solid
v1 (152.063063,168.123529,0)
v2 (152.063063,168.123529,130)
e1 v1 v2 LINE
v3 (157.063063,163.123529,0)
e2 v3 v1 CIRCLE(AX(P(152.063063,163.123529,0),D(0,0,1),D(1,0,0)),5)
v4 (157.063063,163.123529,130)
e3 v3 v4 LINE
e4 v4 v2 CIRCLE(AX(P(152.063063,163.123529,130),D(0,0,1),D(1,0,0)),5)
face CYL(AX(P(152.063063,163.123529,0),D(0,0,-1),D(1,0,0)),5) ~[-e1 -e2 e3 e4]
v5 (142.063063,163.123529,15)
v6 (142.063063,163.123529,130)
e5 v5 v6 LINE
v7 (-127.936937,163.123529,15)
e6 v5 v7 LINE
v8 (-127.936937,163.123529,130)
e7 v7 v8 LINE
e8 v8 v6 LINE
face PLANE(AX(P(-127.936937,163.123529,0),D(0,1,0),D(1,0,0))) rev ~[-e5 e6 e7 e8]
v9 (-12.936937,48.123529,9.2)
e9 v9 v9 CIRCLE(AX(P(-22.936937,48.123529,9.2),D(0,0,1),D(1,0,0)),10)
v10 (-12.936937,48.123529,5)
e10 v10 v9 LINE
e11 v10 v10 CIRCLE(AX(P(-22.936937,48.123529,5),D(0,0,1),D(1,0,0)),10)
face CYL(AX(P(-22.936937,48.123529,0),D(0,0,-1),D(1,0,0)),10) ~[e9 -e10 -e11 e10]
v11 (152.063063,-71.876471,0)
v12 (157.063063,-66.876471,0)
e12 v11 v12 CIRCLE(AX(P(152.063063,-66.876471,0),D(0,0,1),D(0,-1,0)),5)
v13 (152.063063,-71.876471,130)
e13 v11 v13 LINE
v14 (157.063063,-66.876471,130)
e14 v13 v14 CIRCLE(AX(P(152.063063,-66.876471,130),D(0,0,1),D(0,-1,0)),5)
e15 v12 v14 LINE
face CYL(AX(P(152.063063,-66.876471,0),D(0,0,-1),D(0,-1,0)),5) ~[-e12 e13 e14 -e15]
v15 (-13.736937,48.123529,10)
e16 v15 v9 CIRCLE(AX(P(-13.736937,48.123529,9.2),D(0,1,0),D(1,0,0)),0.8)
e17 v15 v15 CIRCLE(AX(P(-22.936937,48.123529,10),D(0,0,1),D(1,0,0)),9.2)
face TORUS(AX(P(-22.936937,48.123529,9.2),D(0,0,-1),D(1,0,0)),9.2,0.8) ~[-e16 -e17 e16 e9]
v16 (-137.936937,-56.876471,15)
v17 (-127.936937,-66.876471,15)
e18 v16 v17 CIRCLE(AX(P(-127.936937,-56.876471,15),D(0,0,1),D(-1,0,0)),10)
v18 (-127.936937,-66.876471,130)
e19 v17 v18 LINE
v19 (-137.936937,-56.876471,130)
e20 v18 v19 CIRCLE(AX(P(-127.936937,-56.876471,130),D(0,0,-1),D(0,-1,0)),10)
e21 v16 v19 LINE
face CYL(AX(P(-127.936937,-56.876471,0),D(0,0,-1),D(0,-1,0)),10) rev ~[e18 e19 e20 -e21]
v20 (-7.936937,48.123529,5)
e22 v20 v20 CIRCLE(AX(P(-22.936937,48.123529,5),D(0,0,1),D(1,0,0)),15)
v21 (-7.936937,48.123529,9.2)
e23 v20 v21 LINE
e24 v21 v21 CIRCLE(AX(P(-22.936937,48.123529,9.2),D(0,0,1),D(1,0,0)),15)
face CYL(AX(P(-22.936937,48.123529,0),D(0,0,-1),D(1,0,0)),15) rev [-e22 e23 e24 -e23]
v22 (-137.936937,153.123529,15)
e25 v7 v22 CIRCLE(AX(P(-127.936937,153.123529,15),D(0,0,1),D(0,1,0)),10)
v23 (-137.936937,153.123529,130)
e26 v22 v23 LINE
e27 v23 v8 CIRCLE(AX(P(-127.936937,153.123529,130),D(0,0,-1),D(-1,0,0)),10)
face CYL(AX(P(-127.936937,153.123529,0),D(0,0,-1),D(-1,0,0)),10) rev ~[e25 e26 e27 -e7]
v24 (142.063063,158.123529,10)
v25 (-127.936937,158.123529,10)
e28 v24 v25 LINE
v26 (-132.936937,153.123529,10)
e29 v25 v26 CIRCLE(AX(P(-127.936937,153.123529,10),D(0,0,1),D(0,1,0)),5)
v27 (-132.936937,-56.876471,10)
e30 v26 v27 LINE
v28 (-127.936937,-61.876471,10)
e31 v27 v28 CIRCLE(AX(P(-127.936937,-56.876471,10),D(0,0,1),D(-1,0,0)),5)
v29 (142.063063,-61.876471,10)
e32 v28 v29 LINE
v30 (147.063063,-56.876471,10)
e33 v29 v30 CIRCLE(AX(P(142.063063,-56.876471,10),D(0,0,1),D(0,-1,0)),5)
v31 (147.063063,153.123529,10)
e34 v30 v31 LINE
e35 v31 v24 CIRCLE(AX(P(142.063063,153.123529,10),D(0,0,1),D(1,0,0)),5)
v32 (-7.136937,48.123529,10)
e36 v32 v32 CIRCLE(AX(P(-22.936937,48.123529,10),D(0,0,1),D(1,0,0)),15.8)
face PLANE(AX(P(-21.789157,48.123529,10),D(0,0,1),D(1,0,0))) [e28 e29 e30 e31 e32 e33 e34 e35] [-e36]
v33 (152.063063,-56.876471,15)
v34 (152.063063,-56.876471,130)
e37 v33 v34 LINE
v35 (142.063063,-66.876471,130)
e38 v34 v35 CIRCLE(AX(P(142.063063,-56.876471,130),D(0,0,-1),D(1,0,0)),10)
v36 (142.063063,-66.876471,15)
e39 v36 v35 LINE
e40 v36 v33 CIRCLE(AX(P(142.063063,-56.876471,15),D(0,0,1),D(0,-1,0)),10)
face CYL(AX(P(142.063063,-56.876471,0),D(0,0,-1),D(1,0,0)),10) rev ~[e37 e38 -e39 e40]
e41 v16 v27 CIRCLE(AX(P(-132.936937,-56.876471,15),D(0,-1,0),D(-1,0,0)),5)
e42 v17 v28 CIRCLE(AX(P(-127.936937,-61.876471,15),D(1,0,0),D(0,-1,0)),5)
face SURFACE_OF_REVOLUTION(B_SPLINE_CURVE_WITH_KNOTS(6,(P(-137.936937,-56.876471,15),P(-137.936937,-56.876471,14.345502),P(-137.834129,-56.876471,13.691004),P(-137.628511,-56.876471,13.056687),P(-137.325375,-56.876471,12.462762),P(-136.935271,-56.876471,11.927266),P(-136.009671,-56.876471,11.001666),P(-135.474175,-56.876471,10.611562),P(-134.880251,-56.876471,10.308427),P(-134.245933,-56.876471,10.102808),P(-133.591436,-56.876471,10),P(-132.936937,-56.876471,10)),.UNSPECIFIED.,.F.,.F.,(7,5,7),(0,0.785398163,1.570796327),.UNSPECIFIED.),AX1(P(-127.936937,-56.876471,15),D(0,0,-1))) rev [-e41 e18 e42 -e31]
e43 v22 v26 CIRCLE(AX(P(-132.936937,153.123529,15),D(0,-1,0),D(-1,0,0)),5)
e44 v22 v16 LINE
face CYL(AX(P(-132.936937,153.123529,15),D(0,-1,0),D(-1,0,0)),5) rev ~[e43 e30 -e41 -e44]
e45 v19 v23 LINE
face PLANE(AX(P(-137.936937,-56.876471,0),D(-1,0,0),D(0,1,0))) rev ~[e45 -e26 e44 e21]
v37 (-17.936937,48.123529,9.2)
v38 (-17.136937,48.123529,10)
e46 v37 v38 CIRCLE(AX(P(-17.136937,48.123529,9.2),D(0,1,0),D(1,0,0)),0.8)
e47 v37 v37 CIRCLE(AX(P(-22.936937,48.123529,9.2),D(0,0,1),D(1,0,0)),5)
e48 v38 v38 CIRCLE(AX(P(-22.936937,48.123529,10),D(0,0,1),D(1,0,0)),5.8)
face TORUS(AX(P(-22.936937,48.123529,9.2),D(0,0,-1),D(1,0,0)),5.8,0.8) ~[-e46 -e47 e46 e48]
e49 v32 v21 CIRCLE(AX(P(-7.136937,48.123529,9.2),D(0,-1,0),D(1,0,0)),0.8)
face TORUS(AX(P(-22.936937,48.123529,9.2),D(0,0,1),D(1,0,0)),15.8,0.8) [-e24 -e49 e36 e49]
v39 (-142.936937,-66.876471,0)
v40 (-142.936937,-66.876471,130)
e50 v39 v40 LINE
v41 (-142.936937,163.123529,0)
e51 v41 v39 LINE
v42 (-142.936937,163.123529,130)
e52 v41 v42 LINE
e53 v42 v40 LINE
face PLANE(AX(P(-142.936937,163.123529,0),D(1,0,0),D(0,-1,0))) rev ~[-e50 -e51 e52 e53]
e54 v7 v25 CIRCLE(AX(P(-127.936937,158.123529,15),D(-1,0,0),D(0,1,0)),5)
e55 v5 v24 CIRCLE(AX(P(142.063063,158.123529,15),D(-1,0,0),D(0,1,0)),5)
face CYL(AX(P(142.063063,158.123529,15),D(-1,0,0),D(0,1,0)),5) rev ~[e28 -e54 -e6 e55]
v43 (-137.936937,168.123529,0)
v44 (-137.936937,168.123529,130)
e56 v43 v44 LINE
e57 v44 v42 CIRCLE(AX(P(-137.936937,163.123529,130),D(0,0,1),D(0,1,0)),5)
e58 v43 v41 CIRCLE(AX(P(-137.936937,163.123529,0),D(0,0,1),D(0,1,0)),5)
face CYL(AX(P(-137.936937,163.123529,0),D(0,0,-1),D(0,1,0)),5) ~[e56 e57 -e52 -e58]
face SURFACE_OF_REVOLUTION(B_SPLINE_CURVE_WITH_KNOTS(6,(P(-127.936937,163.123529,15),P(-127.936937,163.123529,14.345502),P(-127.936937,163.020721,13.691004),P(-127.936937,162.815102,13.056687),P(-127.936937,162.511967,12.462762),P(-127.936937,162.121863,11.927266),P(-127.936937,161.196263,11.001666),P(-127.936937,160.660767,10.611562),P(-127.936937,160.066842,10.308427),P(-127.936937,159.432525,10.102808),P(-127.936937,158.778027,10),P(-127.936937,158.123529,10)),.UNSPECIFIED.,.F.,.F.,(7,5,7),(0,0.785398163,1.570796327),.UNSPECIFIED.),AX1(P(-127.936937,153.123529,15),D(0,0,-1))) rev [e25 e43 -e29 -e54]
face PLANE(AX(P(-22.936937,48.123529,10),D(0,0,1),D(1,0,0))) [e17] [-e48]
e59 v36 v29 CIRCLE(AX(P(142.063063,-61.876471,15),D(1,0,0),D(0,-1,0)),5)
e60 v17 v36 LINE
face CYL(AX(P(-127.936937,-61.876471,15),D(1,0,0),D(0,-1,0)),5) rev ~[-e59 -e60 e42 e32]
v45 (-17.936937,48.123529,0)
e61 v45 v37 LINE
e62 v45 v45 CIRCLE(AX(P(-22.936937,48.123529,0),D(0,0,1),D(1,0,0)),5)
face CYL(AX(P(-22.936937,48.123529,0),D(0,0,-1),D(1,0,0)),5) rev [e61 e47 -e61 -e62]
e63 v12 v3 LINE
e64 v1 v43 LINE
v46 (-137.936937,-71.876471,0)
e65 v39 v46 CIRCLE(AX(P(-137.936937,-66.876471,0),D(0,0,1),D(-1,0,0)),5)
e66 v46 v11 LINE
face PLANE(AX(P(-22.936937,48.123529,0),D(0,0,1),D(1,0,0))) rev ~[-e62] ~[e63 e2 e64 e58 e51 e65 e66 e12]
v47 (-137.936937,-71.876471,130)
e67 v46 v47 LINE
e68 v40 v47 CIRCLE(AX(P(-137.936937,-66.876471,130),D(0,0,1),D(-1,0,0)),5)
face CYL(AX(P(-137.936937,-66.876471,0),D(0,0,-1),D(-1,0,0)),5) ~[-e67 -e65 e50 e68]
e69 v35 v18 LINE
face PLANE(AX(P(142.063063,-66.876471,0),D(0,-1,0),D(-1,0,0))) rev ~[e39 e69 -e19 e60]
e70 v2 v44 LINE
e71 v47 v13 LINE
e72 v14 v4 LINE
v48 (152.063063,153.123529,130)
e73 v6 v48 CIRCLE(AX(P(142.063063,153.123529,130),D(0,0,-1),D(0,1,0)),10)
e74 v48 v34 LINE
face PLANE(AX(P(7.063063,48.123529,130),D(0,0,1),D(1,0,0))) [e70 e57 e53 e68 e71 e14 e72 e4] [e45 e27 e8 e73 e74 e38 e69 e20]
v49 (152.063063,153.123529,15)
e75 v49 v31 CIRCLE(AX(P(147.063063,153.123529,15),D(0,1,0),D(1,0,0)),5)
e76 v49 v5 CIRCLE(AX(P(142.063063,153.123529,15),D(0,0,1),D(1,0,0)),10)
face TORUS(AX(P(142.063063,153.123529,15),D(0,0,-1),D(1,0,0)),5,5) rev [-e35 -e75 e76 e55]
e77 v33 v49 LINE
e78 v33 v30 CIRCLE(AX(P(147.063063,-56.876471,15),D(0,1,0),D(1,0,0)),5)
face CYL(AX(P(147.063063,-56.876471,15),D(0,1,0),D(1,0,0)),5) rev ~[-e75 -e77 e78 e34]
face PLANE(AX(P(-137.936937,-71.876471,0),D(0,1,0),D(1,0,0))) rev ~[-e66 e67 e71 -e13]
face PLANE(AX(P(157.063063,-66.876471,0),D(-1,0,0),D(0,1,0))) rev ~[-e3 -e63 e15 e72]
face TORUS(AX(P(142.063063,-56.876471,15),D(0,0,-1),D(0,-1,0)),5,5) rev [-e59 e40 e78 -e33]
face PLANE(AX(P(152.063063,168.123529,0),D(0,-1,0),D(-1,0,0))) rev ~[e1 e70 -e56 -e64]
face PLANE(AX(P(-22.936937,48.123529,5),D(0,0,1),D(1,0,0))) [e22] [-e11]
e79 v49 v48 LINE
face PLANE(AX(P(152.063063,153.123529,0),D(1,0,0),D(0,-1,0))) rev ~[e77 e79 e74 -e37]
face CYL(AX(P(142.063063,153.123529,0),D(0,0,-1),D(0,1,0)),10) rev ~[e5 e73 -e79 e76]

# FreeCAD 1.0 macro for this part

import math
import FreeCAD as App
import Part
import Sketcher


def edges_at(feature, points):
    """Names of the edges that pass closest to the given points."""
    edges = feature.Shape.Edges
    near = lambda p: min(range(len(edges)), key=lambda i: edges[i].distToShape(Part.Vertex(*p))[0])
    return sorted({f"Edge{near(p) + 1}" for p in points})

doc = App.newDocument("Part")
params = doc.addObject("Spreadsheet::Sheet", "Params")
for row, (alias, value) in enumerate([
    ("sketch1_radius", "5 mm"),
    ("sketch1_radius2", "10 mm"),
    ("sketch1_width", "290 mm"),
    ("sketch1_height", "230 mm"),
    ("pad1_length", "130 mm"),
    ("sketch2_diameter", "30 mm"),
    ("sketch2_radius", "10 mm"),
    ("sketch2_width", "270 mm"),
    ("sketch2_height", "210 mm"),
    ("pad2_length", "10 mm"),
    ("sketch3_diameter", "20 mm"),
    ("sketch3_diameter2", "10 mm"),
    ("pad3_length", "10 mm"),
    ("sketch4_diameter", "30 mm"),
    ("sketch4_diameter2", "20 mm"),
    ("pad4_length", "5 mm"),
    ("fillet_radius", "0.8 mm"),
    ("fillet2_radius", "5 mm"),
], start=1):
    params.set(f"A{row}", alias)
    params.set(f"B{row}", "=" + value)
    params.setAlias(f"B{row}", alias)

body = doc.addObject("PartDesign::Body", "Body")

sketch1 = doc.addObject("Sketcher::SketchObject", "Sketch")
body.addObject(sketch1)
sketch1.AttachmentSupport = (doc.XY_Plane, [""])
sketch1.MapMode = "FlatFace"
sketch1.addGeometry(Part.ArcOfCircle(Part.Circle(App.Vector(-138, 163, 0), App.Vector(0, 0, 1), 5), math.radians(90), math.radians(180)), False)
sketch1.addGeometry(Part.LineSegment(App.Vector(-143, 163, 0), App.Vector(-143, -67, 0)), False)
sketch1.addGeometry(Part.ArcOfCircle(Part.Circle(App.Vector(-138, -67, 0), App.Vector(0, 0, 1), 5), math.radians(180), math.radians(270)), False)
sketch1.addGeometry(Part.LineSegment(App.Vector(-138, -72, 0), App.Vector(152, -72, 0)), False)
sketch1.addGeometry(Part.ArcOfCircle(Part.Circle(App.Vector(152, -67, 0), App.Vector(0, 0, 1), 5), math.radians(-90), math.radians(0)), False)
sketch1.addGeometry(Part.LineSegment(App.Vector(157, -67, 0), App.Vector(157, 163, 0)), False)
sketch1.addGeometry(Part.ArcOfCircle(Part.Circle(App.Vector(152, 163, 0), App.Vector(0, 0, 1), 5), math.radians(0), math.radians(90)), False)
sketch1.addGeometry(Part.LineSegment(App.Vector(152, 168, 0), App.Vector(-138, 168, 0)), False)
sketch1.addGeometry(Part.LineSegment(App.Vector(-138, -57, 0), App.Vector(-138, 153, 0)), False)
sketch1.addGeometry(Part.ArcOfCircle(Part.Circle(App.Vector(-128, 153, 0), App.Vector(0, 0, 1), 10), math.radians(90), math.radians(180)), False)
sketch1.addGeometry(Part.LineSegment(App.Vector(-128, 163, 0), App.Vector(142, 163, 0)), False)
sketch1.addGeometry(Part.ArcOfCircle(Part.Circle(App.Vector(142, 153, 0), App.Vector(0, 0, 1), 10), math.radians(0), math.radians(90)), False)
sketch1.addGeometry(Part.LineSegment(App.Vector(152, 153, 0), App.Vector(152, -57, 0)), False)
sketch1.addGeometry(Part.ArcOfCircle(Part.Circle(App.Vector(142, -57, 0), App.Vector(0, 0, 1), 10), math.radians(-90), math.radians(0)), False)
sketch1.addGeometry(Part.LineSegment(App.Vector(142, -67, 0), App.Vector(-128, -67, 0)), False)
sketch1.addGeometry(Part.ArcOfCircle(Part.Circle(App.Vector(-128, -57, 0), App.Vector(0, 0, 1), 10), math.radians(180), math.radians(270)), False)
sketch1.addConstraint(Sketcher.Constraint("Tangent", 0, 2, 1, 1))
sketch1.addConstraint(Sketcher.Constraint("Tangent", 1, 2, 2, 1))
sketch1.addConstraint(Sketcher.Constraint("Tangent", 2, 2, 3, 1))
sketch1.addConstraint(Sketcher.Constraint("Tangent", 3, 2, 4, 1))
sketch1.addConstraint(Sketcher.Constraint("Tangent", 4, 2, 5, 1))
sketch1.addConstraint(Sketcher.Constraint("Tangent", 5, 2, 6, 1))
sketch1.addConstraint(Sketcher.Constraint("Tangent", 6, 2, 7, 1))
sketch1.addConstraint(Sketcher.Constraint("Tangent", 7, 2, 0, 1))
sketch1.addConstraint(Sketcher.Constraint("Tangent", 8, 2, 9, 2))
sketch1.addConstraint(Sketcher.Constraint("Tangent", 9, 1, 10, 1))
sketch1.addConstraint(Sketcher.Constraint("Tangent", 10, 2, 11, 2))
sketch1.addConstraint(Sketcher.Constraint("Tangent", 11, 1, 12, 1))
sketch1.addConstraint(Sketcher.Constraint("Tangent", 12, 2, 13, 2))
sketch1.addConstraint(Sketcher.Constraint("Tangent", 13, 1, 14, 1))
sketch1.addConstraint(Sketcher.Constraint("Tangent", 14, 2, 15, 2))
sketch1.addConstraint(Sketcher.Constraint("Tangent", 15, 1, 8, 1))
sketch1.addConstraint(Sketcher.Constraint("Vertical", 1))
sketch1.addConstraint(Sketcher.Constraint("Horizontal", 3))
sketch1.addConstraint(Sketcher.Constraint("Vertical", 5))
sketch1.addConstraint(Sketcher.Constraint("Horizontal", 7))
sketch1.addConstraint(Sketcher.Constraint("Vertical", 8))
sketch1.addConstraint(Sketcher.Constraint("Horizontal", 10))
sketch1.addConstraint(Sketcher.Constraint("Vertical", 12))
sketch1.addConstraint(Sketcher.Constraint("Horizontal", 14))
sketch1.addConstraint(Sketcher.Constraint("Equal", 0, 2))
sketch1.addConstraint(Sketcher.Constraint("Equal", 2, 4))
sketch1.addConstraint(Sketcher.Constraint("Equal", 4, 6))
sketch1.addConstraint(Sketcher.Constraint("Equal", 9, 11))
sketch1.addConstraint(Sketcher.Constraint("Equal", 11, 13))
sketch1.addConstraint(Sketcher.Constraint("Equal", 13, 15))
sketch1.addConstraint(Sketcher.Constraint("Horizontal", 5, 2, 9, 1))
sketch1.addConstraint(Sketcher.Constraint("Horizontal", 4, 2, 13, 1))
sketch1.addConstraint(Sketcher.Constraint("Vertical", 7, 2, 8, 2))
sketch1.addConstraint(Sketcher.Constraint("Vertical", 6, 2, 11, 1))
sketch1.addConstraint(Sketcher.Constraint("Radius", 0, 5.0))
sketch1.addConstraint(Sketcher.Constraint("Radius", 9, 10.0))
sketch1.addConstraint(Sketcher.Constraint("DistanceX", 3, 1, 3, 2, 290.0))
sketch1.addConstraint(Sketcher.Constraint("DistanceY", 1, 2, 1, 1, 230.0))
sketch1.addConstraint(Sketcher.Constraint("DistanceY", -1, 1, 0, 3, 163.123529))
sketch1.addConstraint(Sketcher.Constraint("DistanceX", 0, 3, -1, 1, 137.936937))
sketch1.setExpression("Constraints[34]", "Params.sketch1_radius")
sketch1.setExpression("Constraints[35]", "Params.sketch1_radius2")
sketch1.setExpression("Constraints[36]", "Params.sketch1_width")
sketch1.setExpression("Constraints[37]", "Params.sketch1_height")
pad1 = doc.addObject("PartDesign::Pad", "Pad")
body.addObject(pad1)
pad1.Profile = sketch1
pad1.setExpression("Length", "Params.pad1_length")

sketch2 = doc.addObject("Sketcher::SketchObject", "Sketch001")
body.addObject(sketch2)
sketch2.AttachmentSupport = (doc.XY_Plane, [""])
sketch2.MapMode = "FlatFace"
sketch2.addGeometry(Part.ArcOfCircle(Part.Circle(App.Vector(-128, 153, 0), App.Vector(0, 0, 1), 10), math.radians(90), math.radians(180)), False)
sketch2.addGeometry(Part.LineSegment(App.Vector(-138, 153, 0), App.Vector(-138, -57, 0)), False)
sketch2.addGeometry(Part.ArcOfCircle(Part.Circle(App.Vector(-128, -57, 0), App.Vector(0, 0, 1), 10), math.radians(180), math.radians(270)), False)
sketch2.addGeometry(Part.LineSegment(App.Vector(-128, -67, 0), App.Vector(142, -67, 0)), False)
sketch2.addGeometry(Part.ArcOfCircle(Part.Circle(App.Vector(142, -57, 0), App.Vector(0, 0, 1), 10), math.radians(-90), math.radians(0)), False)
sketch2.addGeometry(Part.LineSegment(App.Vector(152, -57, 0), App.Vector(152, 153, 0)), False)
sketch2.addGeometry(Part.ArcOfCircle(Part.Circle(App.Vector(142, 153, 0), App.Vector(0, 0, 1), 10), math.radians(0), math.radians(90)), False)
sketch2.addGeometry(Part.LineSegment(App.Vector(142, 163, 0), App.Vector(-128, 163, 0)), False)
sketch2.addGeometry(Part.Circle(App.Vector(-23, 48, 0), App.Vector(0, 0, 1), 15), False)
sketch2.addConstraint(Sketcher.Constraint("Tangent", 0, 2, 1, 1))
sketch2.addConstraint(Sketcher.Constraint("Tangent", 1, 2, 2, 1))
sketch2.addConstraint(Sketcher.Constraint("Tangent", 2, 2, 3, 1))
sketch2.addConstraint(Sketcher.Constraint("Tangent", 3, 2, 4, 1))
sketch2.addConstraint(Sketcher.Constraint("Tangent", 4, 2, 5, 1))
sketch2.addConstraint(Sketcher.Constraint("Tangent", 5, 2, 6, 1))
sketch2.addConstraint(Sketcher.Constraint("Tangent", 6, 2, 7, 1))
sketch2.addConstraint(Sketcher.Constraint("Tangent", 7, 2, 0, 1))
sketch2.addConstraint(Sketcher.Constraint("Vertical", 1))
sketch2.addConstraint(Sketcher.Constraint("Horizontal", 3))
sketch2.addConstraint(Sketcher.Constraint("Vertical", 5))
sketch2.addConstraint(Sketcher.Constraint("Horizontal", 7))
sketch2.addConstraint(Sketcher.Constraint("Equal", 0, 2))
sketch2.addConstraint(Sketcher.Constraint("Equal", 2, 4))
sketch2.addConstraint(Sketcher.Constraint("Equal", 4, 6))
sketch2.addConstraint(Sketcher.Constraint("Diameter", 8, 30.0))
sketch2.addConstraint(Sketcher.Constraint("Radius", 0, 10.0))
sketch2.addConstraint(Sketcher.Constraint("DistanceX", 3, 1, 3, 2, 270.0))
sketch2.addConstraint(Sketcher.Constraint("DistanceY", 1, 2, 1, 1, 210.0))
sketch2.addConstraint(Sketcher.Constraint("DistanceX", 2, 3, 8, 3, 105.0))
sketch2.addConstraint(Sketcher.Constraint("DistanceY", 2, 3, 8, 3, 105.0))
sketch2.addConstraint(Sketcher.Constraint("DistanceY", -1, 1, 0, 3, 153.123529))
sketch2.addConstraint(Sketcher.Constraint("DistanceX", 0, 3, -1, 1, 127.936937))
sketch2.setExpression("Constraints[15]", "Params.sketch2_diameter")
sketch2.setExpression("Constraints[16]", "Params.sketch2_radius")
sketch2.setExpression("Constraints[17]", "Params.sketch2_width")
sketch2.setExpression("Constraints[18]", "Params.sketch2_height")
pad2 = doc.addObject("PartDesign::Pad", "Pad001")
body.addObject(pad2)
pad2.Profile = sketch2
pad2.setExpression("Length", "Params.pad2_length")
body2 = doc.addObject("PartDesign::Body", "Body001")

sketch3 = doc.addObject("Sketcher::SketchObject", "Sketch002")
body2.addObject(sketch3)
sketch3.AttachmentSupport = (doc.getObject("XY_Plane001"), [""])
sketch3.MapMode = "FlatFace"
sketch3.addGeometry(Part.Circle(App.Vector(-23, 48, 0), App.Vector(0, 0, 1), 10), False)
sketch3.addGeometry(Part.Circle(App.Vector(-23, 48, 0), App.Vector(0, 0, 1), 5), False)
sketch3.addConstraint(Sketcher.Constraint("Coincident", 1, 3, 0, 3))
sketch3.addConstraint(Sketcher.Constraint("Diameter", 0, 20.0))
sketch3.addConstraint(Sketcher.Constraint("Diameter", 1, 10.0))
sketch3.addConstraint(Sketcher.Constraint("DistanceY", -1, 1, 0, 3, 48.123529))
sketch3.addConstraint(Sketcher.Constraint("DistanceX", 0, 3, -1, 1, 22.936937))
sketch3.setExpression("Constraints[1]", "Params.sketch3_diameter")
sketch3.setExpression("Constraints[2]", "Params.sketch3_diameter2")
pad3 = doc.addObject("PartDesign::Pad", "Pad002")
body2.addObject(pad3)
pad3.Profile = sketch3
pad3.setExpression("Length", "Params.pad3_length")
body.AllowCompound = True
doc.recompute()

boolean = doc.addObject("PartDesign::Boolean", "Boolean")
body.addObject(boolean)
boolean.Type = "Fuse"
boolean.addObjects([body2])

sketch4 = doc.addObject("Sketcher::SketchObject", "Sketch003")
body.addObject(sketch4)
sketch4.AttachmentSupport = (doc.XY_Plane, [""])
sketch4.MapMode = "FlatFace"
sketch4.addGeometry(Part.Circle(App.Vector(-23, 48, 0), App.Vector(0, 0, 1), 15), False)
sketch4.addGeometry(Part.Circle(App.Vector(-23, 48, 0), App.Vector(0, 0, 1), 10), False)
sketch4.addConstraint(Sketcher.Constraint("Coincident", 1, 3, 0, 3))
sketch4.addConstraint(Sketcher.Constraint("Diameter", 0, 30.0))
sketch4.addConstraint(Sketcher.Constraint("Diameter", 1, 20.0))
sketch4.addConstraint(Sketcher.Constraint("DistanceY", -1, 1, 0, 3, 48.123529))
sketch4.addConstraint(Sketcher.Constraint("DistanceX", 0, 3, -1, 1, 22.936937))
sketch4.setExpression("Constraints[1]", "Params.sketch4_diameter")
sketch4.setExpression("Constraints[2]", "Params.sketch4_diameter2")
pad4 = doc.addObject("PartDesign::Pad", "Pad003")
body.addObject(pad4)
pad4.Profile = sketch4
pad4.setExpression("Length", "Params.pad4_length")
doc.recompute()

fillet = doc.addObject("PartDesign::Fillet", "Fillet")
body.addObject(fillet)
fillet.Base = (pad4, edges_at(pad4, [(-32.937, 48.124, 10), (-27.937, 48.124, 10), (-37.937, 48.124, 10)]))
fillet.setExpression("Radius", "Params.fillet_radius")
doc.recompute()

fillet2 = doc.addObject("PartDesign::Fillet", "Fillet001")
body.addObject(fillet2)
fillet2.Base = (fillet, edges_at(fillet, [
    (-38.737, 48.124, 10),
    (-135.008, 160.195, 10),
    (-137.937, 48.124, 10),
    (-135.008, -63.948, 10),
    (7.063, -66.876, 10),
    (149.134, -63.948, 10),
    (152.063, 48.124, 10),
    (149.134, 160.195, 10),
    (7.063, 163.124, 10),
]))
fillet2.setExpression("Radius", "Params.fillet2_radius")

doc.recompute()
